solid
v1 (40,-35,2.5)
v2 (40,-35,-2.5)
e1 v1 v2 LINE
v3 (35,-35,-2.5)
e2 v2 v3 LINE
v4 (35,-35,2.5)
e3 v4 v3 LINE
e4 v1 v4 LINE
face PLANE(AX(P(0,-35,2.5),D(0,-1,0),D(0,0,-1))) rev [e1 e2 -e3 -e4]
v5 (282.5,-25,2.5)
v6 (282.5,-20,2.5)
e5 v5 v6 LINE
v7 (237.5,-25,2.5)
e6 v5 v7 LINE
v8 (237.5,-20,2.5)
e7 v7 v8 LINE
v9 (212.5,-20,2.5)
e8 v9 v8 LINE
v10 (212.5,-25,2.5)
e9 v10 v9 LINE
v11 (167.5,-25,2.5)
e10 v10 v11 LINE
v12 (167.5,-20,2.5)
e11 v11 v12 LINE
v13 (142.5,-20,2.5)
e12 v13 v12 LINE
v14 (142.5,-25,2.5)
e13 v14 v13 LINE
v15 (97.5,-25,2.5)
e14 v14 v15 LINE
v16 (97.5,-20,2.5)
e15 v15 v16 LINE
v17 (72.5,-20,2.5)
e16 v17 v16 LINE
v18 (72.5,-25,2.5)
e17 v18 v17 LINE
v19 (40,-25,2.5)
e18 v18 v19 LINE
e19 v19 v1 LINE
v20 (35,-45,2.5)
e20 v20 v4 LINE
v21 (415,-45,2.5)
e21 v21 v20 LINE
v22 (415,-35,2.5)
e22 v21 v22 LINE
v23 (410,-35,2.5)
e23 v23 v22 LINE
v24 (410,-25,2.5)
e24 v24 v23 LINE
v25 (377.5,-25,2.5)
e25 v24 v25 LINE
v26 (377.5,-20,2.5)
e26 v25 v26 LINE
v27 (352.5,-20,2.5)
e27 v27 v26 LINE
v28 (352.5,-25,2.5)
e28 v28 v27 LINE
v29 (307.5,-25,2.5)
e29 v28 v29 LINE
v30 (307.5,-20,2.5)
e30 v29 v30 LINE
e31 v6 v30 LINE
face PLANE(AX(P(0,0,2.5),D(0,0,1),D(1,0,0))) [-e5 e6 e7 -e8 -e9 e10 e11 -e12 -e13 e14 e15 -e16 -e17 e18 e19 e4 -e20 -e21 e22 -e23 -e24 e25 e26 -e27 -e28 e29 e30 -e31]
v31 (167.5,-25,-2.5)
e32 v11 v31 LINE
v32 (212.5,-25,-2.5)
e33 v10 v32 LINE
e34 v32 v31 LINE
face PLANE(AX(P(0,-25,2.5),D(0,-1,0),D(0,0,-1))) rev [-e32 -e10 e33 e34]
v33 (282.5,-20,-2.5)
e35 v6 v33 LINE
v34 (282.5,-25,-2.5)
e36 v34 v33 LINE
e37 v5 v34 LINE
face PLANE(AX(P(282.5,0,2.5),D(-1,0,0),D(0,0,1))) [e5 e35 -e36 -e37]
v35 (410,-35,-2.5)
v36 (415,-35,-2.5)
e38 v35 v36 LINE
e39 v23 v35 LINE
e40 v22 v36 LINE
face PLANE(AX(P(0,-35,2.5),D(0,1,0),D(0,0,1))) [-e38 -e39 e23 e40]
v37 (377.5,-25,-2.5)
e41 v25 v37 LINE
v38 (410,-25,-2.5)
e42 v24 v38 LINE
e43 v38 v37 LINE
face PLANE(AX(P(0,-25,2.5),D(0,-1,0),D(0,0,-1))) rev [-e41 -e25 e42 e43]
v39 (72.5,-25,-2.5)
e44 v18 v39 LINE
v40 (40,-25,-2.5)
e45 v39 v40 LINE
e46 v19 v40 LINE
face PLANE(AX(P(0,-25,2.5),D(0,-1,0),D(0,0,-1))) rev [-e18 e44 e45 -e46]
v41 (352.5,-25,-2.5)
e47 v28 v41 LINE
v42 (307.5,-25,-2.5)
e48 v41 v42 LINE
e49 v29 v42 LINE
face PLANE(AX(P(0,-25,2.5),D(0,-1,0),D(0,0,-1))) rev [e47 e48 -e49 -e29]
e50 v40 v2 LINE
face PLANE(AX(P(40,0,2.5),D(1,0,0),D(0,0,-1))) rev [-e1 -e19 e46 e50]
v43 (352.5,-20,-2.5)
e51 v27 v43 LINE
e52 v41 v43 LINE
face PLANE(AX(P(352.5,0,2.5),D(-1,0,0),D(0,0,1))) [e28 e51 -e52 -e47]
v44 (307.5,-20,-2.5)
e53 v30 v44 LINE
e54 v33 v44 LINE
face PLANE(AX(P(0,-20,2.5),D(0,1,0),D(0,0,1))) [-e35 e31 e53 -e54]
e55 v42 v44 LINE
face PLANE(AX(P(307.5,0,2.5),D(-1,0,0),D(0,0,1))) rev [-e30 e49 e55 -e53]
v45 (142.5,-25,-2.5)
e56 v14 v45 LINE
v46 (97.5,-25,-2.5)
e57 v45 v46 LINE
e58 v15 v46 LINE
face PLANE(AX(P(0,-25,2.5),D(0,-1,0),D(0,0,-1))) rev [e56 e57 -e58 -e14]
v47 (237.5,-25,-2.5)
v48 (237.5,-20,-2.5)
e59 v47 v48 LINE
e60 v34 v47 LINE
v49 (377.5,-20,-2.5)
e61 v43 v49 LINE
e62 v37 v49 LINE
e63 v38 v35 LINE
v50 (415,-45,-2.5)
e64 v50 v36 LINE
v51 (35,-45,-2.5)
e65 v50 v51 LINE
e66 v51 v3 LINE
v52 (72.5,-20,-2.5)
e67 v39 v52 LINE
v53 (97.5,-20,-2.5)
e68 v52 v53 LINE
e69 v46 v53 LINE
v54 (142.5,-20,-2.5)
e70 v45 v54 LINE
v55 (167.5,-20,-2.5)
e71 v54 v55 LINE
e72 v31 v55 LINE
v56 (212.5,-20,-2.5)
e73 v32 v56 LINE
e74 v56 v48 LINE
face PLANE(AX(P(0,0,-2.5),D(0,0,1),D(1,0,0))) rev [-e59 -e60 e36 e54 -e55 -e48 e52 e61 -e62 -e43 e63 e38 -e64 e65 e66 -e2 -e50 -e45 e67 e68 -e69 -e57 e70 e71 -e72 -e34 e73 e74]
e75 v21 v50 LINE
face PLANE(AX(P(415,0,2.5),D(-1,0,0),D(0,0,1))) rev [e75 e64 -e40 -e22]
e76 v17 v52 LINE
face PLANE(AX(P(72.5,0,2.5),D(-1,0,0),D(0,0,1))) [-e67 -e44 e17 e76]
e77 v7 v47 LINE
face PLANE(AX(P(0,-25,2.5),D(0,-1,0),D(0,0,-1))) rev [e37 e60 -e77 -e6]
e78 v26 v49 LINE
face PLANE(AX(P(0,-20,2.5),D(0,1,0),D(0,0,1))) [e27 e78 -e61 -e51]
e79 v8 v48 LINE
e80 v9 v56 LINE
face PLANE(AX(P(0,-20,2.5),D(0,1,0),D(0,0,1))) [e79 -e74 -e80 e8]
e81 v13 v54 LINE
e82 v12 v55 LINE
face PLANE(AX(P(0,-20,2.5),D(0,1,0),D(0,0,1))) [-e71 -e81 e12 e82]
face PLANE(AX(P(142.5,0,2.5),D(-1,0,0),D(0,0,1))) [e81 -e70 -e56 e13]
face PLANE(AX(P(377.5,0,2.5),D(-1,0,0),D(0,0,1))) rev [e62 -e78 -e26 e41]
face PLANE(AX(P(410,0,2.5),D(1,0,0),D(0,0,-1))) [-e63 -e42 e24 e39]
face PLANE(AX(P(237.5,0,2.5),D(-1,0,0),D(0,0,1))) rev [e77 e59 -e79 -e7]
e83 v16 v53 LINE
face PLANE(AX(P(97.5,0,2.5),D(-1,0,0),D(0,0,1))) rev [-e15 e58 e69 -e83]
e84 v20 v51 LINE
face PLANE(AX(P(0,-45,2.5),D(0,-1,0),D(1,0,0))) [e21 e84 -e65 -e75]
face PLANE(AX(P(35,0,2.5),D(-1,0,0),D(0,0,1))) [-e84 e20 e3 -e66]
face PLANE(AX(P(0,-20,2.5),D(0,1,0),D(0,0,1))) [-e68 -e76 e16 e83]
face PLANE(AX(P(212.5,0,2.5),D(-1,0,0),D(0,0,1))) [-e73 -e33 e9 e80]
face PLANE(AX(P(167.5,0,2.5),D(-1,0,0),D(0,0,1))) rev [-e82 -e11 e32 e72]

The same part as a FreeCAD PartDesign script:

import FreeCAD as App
import Part
import Sketcher

V = App.Vector
Q = App.Units.Quantity


def add_polygon(sketch, points):
    """Adds a closed chain of lines whose ends are joined by coincident constraints."""
    first, n = sketch.GeometryCount, len(points)
    for a, b in zip(points, points[1:] + points[:1]):
        sketch.addGeometry(Part.LineSegment(App.Vector(*a, 0), App.Vector(*b, 0)), False)
    for i in range(n):
        sketch.addConstraint(Sketcher.Constraint("Coincident", first + i, 2, first + (i + 1) % n, 1))

doc = App.newDocument("Part")
body = doc.addObject("PartDesign::Body", "Body")

# Sketch on XY plane
sketch1 = body.newObject("Sketcher::SketchObject", "Sketch")
sketch1.AttachmentSupport = (doc.getObject("XY_Plane"), [""])
sketch1.MapMode = "FlatFace"
add_polygon(sketch1, [(410, -35), (410, -25), (378, -25), (378, -20), (352, -20), (352, -25), (308, -25), (308, -20), (282, -20), (282, -25), (238, -25), (238, -20), (212, -20), (212, -25), (168, -25), (168, -20), (142, -20), (142, -25), (98, -25), (98, -20), (72, -20), (72, -25), (40, -25), (40, -35), (35, -35), (35, -45), (415, -45), (415, -35)])  # lines 0-27
sketch1.addConstraint(Sketcher.Constraint("Vertical", 0))
sketch1.addConstraint(Sketcher.Constraint("Horizontal", 1))
sketch1.addConstraint(Sketcher.Constraint("Vertical", 2))
sketch1.addConstraint(Sketcher.Constraint("Horizontal", 3))
sketch1.addConstraint(Sketcher.Constraint("Vertical", 4))
sketch1.addConstraint(Sketcher.Constraint("Horizontal", 5))
sketch1.addConstraint(Sketcher.Constraint("Vertical", 6))
sketch1.addConstraint(Sketcher.Constraint("Horizontal", 7))
sketch1.addConstraint(Sketcher.Constraint("Vertical", 8))
sketch1.addConstraint(Sketcher.Constraint("Horizontal", 9))
sketch1.addConstraint(Sketcher.Constraint("Vertical", 10))
sketch1.addConstraint(Sketcher.Constraint("Horizontal", 11))
sketch1.addConstraint(Sketcher.Constraint("Vertical", 12))
sketch1.addConstraint(Sketcher.Constraint("Horizontal", 13))
sketch1.addConstraint(Sketcher.Constraint("Vertical", 14))
sketch1.addConstraint(Sketcher.Constraint("Horizontal", 15))
sketch1.addConstraint(Sketcher.Constraint("Vertical", 16))
sketch1.addConstraint(Sketcher.Constraint("Horizontal", 17))
sketch1.addConstraint(Sketcher.Constraint("Vertical", 18))
sketch1.addConstraint(Sketcher.Constraint("Horizontal", 19))
sketch1.addConstraint(Sketcher.Constraint("Vertical", 20))
sketch1.addConstraint(Sketcher.Constraint("Horizontal", 21))
sketch1.addConstraint(Sketcher.Constraint("Vertical", 22))
sketch1.addConstraint(Sketcher.Constraint("Horizontal", 23))
sketch1.addConstraint(Sketcher.Constraint("Vertical", 24))
sketch1.addConstraint(Sketcher.Constraint("Horizontal", 25))
sketch1.addConstraint(Sketcher.Constraint("Vertical", 26))
sketch1.addConstraint(Sketcher.Constraint("Horizontal", 27))
sketch1.addConstraint(Sketcher.Constraint("Horizontal", 1, 2, 4, 2))
sketch1.addConstraint(Sketcher.Constraint("Horizontal", 3, 2, 6, 2))
sketch1.addConstraint(Sketcher.Constraint("Horizontal", 5, 2, 8, 2))
sketch1.addConstraint(Sketcher.Constraint("Horizontal", 7, 2, 10, 2))
sketch1.addConstraint(Sketcher.Constraint("Horizontal", 9, 2, 12, 2))
sketch1.addConstraint(Sketcher.Constraint("Horizontal", 11, 2, 14, 2))
sketch1.addConstraint(Sketcher.Constraint("Horizontal", 13, 2, 16, 2))
sketch1.addConstraint(Sketcher.Constraint("Horizontal", 15, 2, 18, 2))
sketch1.addConstraint(Sketcher.Constraint("Horizontal", 17, 2, 20, 2))
sketch1.addConstraint(Sketcher.Constraint("Horizontal", 23, 2, 26, 2))
sketch1.addConstraint(Sketcher.Constraint("Equal", 3, 7))
sketch1.addConstraint(Sketcher.Constraint("Equal", 5, 9))
sketch1.addConstraint(Sketcher.Constraint("Equal", 7, 11))
sketch1.addConstraint(Sketcher.Constraint("Equal", 9, 13))
sketch1.addConstraint(Sketcher.Constraint("Equal", 11, 15))
sketch1.addConstraint(Sketcher.Constraint("Equal", 13, 17))
sketch1.addConstraint(Sketcher.Constraint("Equal", 15, 19))
sketch1.addConstraint(Sketcher.Constraint("Equal", 1, 21))
sketch1.addConstraint(Sketcher.Constraint("Equal", 23, 27))
sketch1.addConstraint(Sketcher.Constraint("Equal", 27, 2))
sketch1.addConstraint(Sketcher.Constraint("Equal", 22, 24))
sketch1.addConstraint(Sketcher.Constraint("DistanceX", 3, 2, 3, 1, Q("25 mm")))
sketch1.addConstraint(Sketcher.Constraint("DistanceX", 5, 2, 5, 1, Q("45 mm")))
sketch1.addConstraint(Sketcher.Constraint("DistanceX", 23, 2, 23, 1, Q("5 mm")))
sketch1.addConstraint(Sketcher.Constraint("DistanceX", 25, 1, 25, 2, Q("380 mm")))
sketch1.addConstraint(Sketcher.Constraint("DistanceY", 0, 1, 0, 2, Q("10 mm")))
sketch1.addConstraint(Sketcher.Constraint("DistanceX", -1, 1, 0, 2, Q("410 mm")))
sketch1.addConstraint(Sketcher.Constraint("DistanceY", 0, 2, -1, 1, Q("25 mm")))
pad1 = body.newObject("PartDesign::Pad", "Pad")
pad1.Profile = sketch1
pad1.Length = 5
pad1.Midplane = True

doc.recompute()
